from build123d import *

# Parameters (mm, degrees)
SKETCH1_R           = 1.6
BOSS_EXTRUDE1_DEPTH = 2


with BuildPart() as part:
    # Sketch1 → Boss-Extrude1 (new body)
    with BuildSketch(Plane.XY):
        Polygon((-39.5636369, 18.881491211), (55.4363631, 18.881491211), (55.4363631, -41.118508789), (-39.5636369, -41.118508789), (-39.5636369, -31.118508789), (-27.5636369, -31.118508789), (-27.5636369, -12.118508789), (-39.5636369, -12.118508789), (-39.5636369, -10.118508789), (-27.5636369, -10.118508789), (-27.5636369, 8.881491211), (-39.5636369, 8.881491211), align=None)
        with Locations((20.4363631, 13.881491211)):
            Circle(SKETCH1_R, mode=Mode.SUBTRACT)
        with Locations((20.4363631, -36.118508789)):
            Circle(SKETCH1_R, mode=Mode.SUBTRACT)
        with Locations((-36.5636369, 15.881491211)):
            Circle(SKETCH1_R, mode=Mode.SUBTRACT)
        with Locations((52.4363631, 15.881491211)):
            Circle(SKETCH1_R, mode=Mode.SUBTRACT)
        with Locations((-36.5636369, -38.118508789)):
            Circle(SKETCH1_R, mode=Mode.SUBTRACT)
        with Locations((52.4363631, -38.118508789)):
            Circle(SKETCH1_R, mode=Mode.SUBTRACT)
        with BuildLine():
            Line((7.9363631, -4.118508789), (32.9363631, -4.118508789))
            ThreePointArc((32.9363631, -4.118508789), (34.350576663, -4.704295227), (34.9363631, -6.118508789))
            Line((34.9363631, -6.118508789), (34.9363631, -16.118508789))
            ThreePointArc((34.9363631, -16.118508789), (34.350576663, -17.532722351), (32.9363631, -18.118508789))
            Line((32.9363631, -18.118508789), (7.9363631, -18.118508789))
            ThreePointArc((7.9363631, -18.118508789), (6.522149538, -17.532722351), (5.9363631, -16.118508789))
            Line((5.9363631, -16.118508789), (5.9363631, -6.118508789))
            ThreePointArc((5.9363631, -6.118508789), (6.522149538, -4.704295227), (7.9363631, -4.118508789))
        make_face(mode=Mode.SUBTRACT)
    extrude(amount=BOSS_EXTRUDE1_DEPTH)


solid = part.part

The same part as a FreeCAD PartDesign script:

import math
import FreeCAD as App
import Part
import Sketcher

V = App.Vector


def add_polygon(sketch, points):
    """Adds a closed chain of lines whose ends are joined by coincident constraints."""
    first, n = sketch.GeometryCount, len(points)
    for a, b in zip(points, points[1:] + points[:1]):
        sketch.addGeometry(Part.LineSegment(App.Vector(*a, 0), App.Vector(*b, 0)), False)
    for i in range(n):
        sketch.addConstraint(Sketcher.Constraint("Coincident", first + i, 2, first + (i + 1) % n, 1))

doc = App.newDocument("Part")
body = doc.addObject("PartDesign::Body", "Body")

sketch1 = body.newObject("Sketcher::SketchObject", "Sketch")
sketch1.AttachmentSupport = (doc.getObject("XY_Plane"), [""])
sketch1.MapMode = "FlatFace"
add_polygon(sketch1, [(55.4, 18.9), (-39.6, 18.9), (-39.6, 8.9), (-27.6, 8.9), (-27.6, -10.1), (-39.6, -10.1), (-39.6, -12.1), (-27.6, -12.1), (-27.6, -31.1), (-39.6, -31.1), (-39.6, -41.1), (55.4, -41.1)])
sketch1.addGeometry(Part.Circle(V(52.4, -38.1, 0), V(0, 0, 1), 1.6), False)
sketch1.addGeometry(Part.Circle(V(20.4, -36.1, 0), V(0, 0, 1), 1.6), False)
sketch1.addGeometry(Part.Circle(V(-36.6, -38.1, 0), V(0, 0, 1), 1.6), False)
sketch1.addGeometry(Part.LineSegment(V(7.9, -4.1, 0), V(32.9, -4.1, 0)), False)
sketch1.addGeometry(Part.ArcOfCircle(Part.Circle(V(32.9, -6.1, 0), V(0, 0, 1), 2), math.radians(0), math.radians(90)), False)
sketch1.addGeometry(Part.LineSegment(V(34.9, -6.1, 0), V(34.9, -16.1, 0)), False)
sketch1.addGeometry(Part.ArcOfCircle(Part.Circle(V(32.9, -16.1, 0), V(0, 0, 1), 2), math.radians(-90), math.radians(0)), False)
sketch1.addGeometry(Part.LineSegment(V(32.9, -18.1, 0), V(7.9, -18.1, 0)), False)
sketch1.addGeometry(Part.ArcOfCircle(Part.Circle(V(7.9, -16.1, 0), V(0, 0, 1), 2), math.radians(-180), math.radians(-90)), False)
sketch1.addGeometry(Part.LineSegment(V(5.9, -16.1, 0), V(5.9, -6.1, 0)), False)
sketch1.addGeometry(Part.ArcOfCircle(Part.Circle(V(7.9, -6.1, 0), V(0, 0, 1), 2), math.radians(90), math.radians(180)), False)
sketch1.addGeometry(Part.Circle(V(52.4, 15.9, 0), V(0, 0, 1), 1.6), False)
sketch1.addGeometry(Part.Circle(V(20.4, 13.9, 0), V(0, 0, 1), 1.6), False)
sketch1.addGeometry(Part.Circle(V(-36.6, 15.9, 0), V(0, 0, 1), 1.6), False)
sketch1.addConstraint(Sketcher.Constraint("Tangent", 15, 2, 16, 2))
sketch1.addConstraint(Sketcher.Constraint("Tangent", 16, 1, 17, 1))
sketch1.addConstraint(Sketcher.Constraint("Tangent", 17, 2, 18, 2))
sketch1.addConstraint(Sketcher.Constraint("Tangent", 18, 1, 19, 1))
sketch1.addConstraint(Sketcher.Constraint("Tangent", 19, 2, 20, 2))
sketch1.addConstraint(Sketcher.Constraint("Tangent", 20, 1, 21, 1))
sketch1.addConstraint(Sketcher.Constraint("Tangent", 21, 2, 22, 2))
sketch1.addConstraint(Sketcher.Constraint("Tangent", 22, 1, 15, 1))
sketch1.addConstraint(Sketcher.Constraint("Horizontal", 0))
sketch1.addConstraint(Sketcher.Constraint("Vertical", 1))
sketch1.addConstraint(Sketcher.Constraint("Horizontal", 2))
sketch1.addConstraint(Sketcher.Constraint("Vertical", 3))
sketch1.addConstraint(Sketcher.Constraint("Horizontal", 4))
sketch1.addConstraint(Sketcher.Constraint("Vertical", 5))
sketch1.addConstraint(Sketcher.Constraint("Horizontal", 6))
sketch1.addConstraint(Sketcher.Constraint("Vertical", 7))
sketch1.addConstraint(Sketcher.Constraint("Horizontal", 8))
sketch1.addConstraint(Sketcher.Constraint("Vertical", 9))
sketch1.addConstraint(Sketcher.Constraint("Horizontal", 10))
sketch1.addConstraint(Sketcher.Constraint("Vertical", 11))
sketch1.addConstraint(Sketcher.Constraint("Horizontal", 15))
sketch1.addConstraint(Sketcher.Constraint("Vertical", 17))
sketch1.addConstraint(Sketcher.Constraint("Horizontal", 19))
sketch1.addConstraint(Sketcher.Constraint("Vertical", 21))
sketch1.addConstraint(Sketcher.Constraint("Equal", 12, 13))
sketch1.addConstraint(Sketcher.Constraint("Equal", 13, 14))
sketch1.addConstraint(Sketcher.Constraint("Equal", 16, 18))
sketch1.addConstraint(Sketcher.Constraint("Equal", 18, 20))
sketch1.addConstraint(Sketcher.Constraint("Equal", 20, 22))
sketch1.addConstraint(Sketcher.Constraint("Equal", 14, 23))
sketch1.addConstraint(Sketcher.Constraint("Equal", 23, 24))
sketch1.addConstraint(Sketcher.Constraint("Equal", 24, 25))
sketch1.addConstraint(Sketcher.Constraint("Horizontal", 12, 3, 14, 3))
sketch1.addConstraint(Sketcher.Constraint("Horizontal", 23, 3, 25, 3))
sketch1.addConstraint(Sketcher.Constraint("Vertical", 12, 3, 23, 3))
sketch1.addConstraint(Sketcher.Constraint("Vertical", 13, 3, 24, 3))
sketch1.addConstraint(Sketcher.Constraint("Vertical", 14, 3, 25, 3))
sketch1.addConstraint(Sketcher.Constraint("Vertical", 1, 2, 4, 2))
sketch1.addConstraint(Sketcher.Constraint("Vertical", 3, 2, 6, 2))
sketch1.addConstraint(Sketcher.Constraint("Vertical", 5, 2, 8, 2))
sketch1.addConstraint(Sketcher.Constraint("Equal", 3, 7))
sketch1.addConstraint(Sketcher.Constraint("Equal", 1, 9))
sketch1.addConstraint(Sketcher.Constraint("Equal", 9, 17))
sketch1.addConstraint(Sketcher.Constraint("Radius", 16, 2.0))
sketch1.addConstraint(Sketcher.Constraint("Diameter", 12, 3.2))
sketch1.addConstraint(Sketcher.Constraint("DistanceX", 0, 2, 0, 1, 95.0))
sketch1.addConstraint(Sketcher.Constraint("DistanceX", 2, 1, 2, 2, 12.0))
sketch1.addConstraint(Sketcher.Constraint("DistanceX", 15, 1, 15, 2, 25.0))
sketch1.addConstraint(Sketcher.Constraint("DistanceY", 1, 2, 1, 1, 10.0))
sketch1.addConstraint(Sketcher.Constraint("DistanceY", 3, 2, 3, 1, 19.0))
sketch1.addConstraint(Sketcher.Constraint("DistanceY", 5, 2, 5, 1, 2.0))
sketch1.addConstraint(Sketcher.Constraint("DistanceX", 13, 3, 12, 3, 32.0))
sketch1.addConstraint(Sketcher.Constraint("DistanceY", 12, 3, 13, 3, 2.0))
sketch1.addConstraint(Sketcher.Constraint("DistanceX", 14, 3, 13, 3, 57.0))
sketch1.addConstraint(Sketcher.Constraint("DistanceY", 13, 3, 16, 3, 30.0))
sketch1.addConstraint(Sketcher.Constraint("DistanceY", 16, 3, 23, 3, 22.0))
sketch1.addConstraint(Sketcher.Constraint("DistanceY", 16, 3, 24, 3, 20.0))
sketch1.addConstraint(Sketcher.Constraint("DistanceX", 0, 2, 25, 3, 3.0))
sketch1.addConstraint(Sketcher.Constraint("DistanceY", 25, 3, 0, 2, 3.0))
sketch1.addConstraint(Sketcher.Constraint("DistanceX", 13, 3, 16, 3, 12.5))
sketch1.addConstraint(Sketcher.Constraint("DistanceY", 12, 3, -1, 1, 38.118509))
sketch1.addConstraint(Sketcher.Constraint("DistanceX", -1, 1, 12, 3, 52.436363))
pad1 = body.newObject("PartDesign::Pad", "Pad")
pad1.Profile = sketch1
pad1.Length = 2

doc.recompute()
